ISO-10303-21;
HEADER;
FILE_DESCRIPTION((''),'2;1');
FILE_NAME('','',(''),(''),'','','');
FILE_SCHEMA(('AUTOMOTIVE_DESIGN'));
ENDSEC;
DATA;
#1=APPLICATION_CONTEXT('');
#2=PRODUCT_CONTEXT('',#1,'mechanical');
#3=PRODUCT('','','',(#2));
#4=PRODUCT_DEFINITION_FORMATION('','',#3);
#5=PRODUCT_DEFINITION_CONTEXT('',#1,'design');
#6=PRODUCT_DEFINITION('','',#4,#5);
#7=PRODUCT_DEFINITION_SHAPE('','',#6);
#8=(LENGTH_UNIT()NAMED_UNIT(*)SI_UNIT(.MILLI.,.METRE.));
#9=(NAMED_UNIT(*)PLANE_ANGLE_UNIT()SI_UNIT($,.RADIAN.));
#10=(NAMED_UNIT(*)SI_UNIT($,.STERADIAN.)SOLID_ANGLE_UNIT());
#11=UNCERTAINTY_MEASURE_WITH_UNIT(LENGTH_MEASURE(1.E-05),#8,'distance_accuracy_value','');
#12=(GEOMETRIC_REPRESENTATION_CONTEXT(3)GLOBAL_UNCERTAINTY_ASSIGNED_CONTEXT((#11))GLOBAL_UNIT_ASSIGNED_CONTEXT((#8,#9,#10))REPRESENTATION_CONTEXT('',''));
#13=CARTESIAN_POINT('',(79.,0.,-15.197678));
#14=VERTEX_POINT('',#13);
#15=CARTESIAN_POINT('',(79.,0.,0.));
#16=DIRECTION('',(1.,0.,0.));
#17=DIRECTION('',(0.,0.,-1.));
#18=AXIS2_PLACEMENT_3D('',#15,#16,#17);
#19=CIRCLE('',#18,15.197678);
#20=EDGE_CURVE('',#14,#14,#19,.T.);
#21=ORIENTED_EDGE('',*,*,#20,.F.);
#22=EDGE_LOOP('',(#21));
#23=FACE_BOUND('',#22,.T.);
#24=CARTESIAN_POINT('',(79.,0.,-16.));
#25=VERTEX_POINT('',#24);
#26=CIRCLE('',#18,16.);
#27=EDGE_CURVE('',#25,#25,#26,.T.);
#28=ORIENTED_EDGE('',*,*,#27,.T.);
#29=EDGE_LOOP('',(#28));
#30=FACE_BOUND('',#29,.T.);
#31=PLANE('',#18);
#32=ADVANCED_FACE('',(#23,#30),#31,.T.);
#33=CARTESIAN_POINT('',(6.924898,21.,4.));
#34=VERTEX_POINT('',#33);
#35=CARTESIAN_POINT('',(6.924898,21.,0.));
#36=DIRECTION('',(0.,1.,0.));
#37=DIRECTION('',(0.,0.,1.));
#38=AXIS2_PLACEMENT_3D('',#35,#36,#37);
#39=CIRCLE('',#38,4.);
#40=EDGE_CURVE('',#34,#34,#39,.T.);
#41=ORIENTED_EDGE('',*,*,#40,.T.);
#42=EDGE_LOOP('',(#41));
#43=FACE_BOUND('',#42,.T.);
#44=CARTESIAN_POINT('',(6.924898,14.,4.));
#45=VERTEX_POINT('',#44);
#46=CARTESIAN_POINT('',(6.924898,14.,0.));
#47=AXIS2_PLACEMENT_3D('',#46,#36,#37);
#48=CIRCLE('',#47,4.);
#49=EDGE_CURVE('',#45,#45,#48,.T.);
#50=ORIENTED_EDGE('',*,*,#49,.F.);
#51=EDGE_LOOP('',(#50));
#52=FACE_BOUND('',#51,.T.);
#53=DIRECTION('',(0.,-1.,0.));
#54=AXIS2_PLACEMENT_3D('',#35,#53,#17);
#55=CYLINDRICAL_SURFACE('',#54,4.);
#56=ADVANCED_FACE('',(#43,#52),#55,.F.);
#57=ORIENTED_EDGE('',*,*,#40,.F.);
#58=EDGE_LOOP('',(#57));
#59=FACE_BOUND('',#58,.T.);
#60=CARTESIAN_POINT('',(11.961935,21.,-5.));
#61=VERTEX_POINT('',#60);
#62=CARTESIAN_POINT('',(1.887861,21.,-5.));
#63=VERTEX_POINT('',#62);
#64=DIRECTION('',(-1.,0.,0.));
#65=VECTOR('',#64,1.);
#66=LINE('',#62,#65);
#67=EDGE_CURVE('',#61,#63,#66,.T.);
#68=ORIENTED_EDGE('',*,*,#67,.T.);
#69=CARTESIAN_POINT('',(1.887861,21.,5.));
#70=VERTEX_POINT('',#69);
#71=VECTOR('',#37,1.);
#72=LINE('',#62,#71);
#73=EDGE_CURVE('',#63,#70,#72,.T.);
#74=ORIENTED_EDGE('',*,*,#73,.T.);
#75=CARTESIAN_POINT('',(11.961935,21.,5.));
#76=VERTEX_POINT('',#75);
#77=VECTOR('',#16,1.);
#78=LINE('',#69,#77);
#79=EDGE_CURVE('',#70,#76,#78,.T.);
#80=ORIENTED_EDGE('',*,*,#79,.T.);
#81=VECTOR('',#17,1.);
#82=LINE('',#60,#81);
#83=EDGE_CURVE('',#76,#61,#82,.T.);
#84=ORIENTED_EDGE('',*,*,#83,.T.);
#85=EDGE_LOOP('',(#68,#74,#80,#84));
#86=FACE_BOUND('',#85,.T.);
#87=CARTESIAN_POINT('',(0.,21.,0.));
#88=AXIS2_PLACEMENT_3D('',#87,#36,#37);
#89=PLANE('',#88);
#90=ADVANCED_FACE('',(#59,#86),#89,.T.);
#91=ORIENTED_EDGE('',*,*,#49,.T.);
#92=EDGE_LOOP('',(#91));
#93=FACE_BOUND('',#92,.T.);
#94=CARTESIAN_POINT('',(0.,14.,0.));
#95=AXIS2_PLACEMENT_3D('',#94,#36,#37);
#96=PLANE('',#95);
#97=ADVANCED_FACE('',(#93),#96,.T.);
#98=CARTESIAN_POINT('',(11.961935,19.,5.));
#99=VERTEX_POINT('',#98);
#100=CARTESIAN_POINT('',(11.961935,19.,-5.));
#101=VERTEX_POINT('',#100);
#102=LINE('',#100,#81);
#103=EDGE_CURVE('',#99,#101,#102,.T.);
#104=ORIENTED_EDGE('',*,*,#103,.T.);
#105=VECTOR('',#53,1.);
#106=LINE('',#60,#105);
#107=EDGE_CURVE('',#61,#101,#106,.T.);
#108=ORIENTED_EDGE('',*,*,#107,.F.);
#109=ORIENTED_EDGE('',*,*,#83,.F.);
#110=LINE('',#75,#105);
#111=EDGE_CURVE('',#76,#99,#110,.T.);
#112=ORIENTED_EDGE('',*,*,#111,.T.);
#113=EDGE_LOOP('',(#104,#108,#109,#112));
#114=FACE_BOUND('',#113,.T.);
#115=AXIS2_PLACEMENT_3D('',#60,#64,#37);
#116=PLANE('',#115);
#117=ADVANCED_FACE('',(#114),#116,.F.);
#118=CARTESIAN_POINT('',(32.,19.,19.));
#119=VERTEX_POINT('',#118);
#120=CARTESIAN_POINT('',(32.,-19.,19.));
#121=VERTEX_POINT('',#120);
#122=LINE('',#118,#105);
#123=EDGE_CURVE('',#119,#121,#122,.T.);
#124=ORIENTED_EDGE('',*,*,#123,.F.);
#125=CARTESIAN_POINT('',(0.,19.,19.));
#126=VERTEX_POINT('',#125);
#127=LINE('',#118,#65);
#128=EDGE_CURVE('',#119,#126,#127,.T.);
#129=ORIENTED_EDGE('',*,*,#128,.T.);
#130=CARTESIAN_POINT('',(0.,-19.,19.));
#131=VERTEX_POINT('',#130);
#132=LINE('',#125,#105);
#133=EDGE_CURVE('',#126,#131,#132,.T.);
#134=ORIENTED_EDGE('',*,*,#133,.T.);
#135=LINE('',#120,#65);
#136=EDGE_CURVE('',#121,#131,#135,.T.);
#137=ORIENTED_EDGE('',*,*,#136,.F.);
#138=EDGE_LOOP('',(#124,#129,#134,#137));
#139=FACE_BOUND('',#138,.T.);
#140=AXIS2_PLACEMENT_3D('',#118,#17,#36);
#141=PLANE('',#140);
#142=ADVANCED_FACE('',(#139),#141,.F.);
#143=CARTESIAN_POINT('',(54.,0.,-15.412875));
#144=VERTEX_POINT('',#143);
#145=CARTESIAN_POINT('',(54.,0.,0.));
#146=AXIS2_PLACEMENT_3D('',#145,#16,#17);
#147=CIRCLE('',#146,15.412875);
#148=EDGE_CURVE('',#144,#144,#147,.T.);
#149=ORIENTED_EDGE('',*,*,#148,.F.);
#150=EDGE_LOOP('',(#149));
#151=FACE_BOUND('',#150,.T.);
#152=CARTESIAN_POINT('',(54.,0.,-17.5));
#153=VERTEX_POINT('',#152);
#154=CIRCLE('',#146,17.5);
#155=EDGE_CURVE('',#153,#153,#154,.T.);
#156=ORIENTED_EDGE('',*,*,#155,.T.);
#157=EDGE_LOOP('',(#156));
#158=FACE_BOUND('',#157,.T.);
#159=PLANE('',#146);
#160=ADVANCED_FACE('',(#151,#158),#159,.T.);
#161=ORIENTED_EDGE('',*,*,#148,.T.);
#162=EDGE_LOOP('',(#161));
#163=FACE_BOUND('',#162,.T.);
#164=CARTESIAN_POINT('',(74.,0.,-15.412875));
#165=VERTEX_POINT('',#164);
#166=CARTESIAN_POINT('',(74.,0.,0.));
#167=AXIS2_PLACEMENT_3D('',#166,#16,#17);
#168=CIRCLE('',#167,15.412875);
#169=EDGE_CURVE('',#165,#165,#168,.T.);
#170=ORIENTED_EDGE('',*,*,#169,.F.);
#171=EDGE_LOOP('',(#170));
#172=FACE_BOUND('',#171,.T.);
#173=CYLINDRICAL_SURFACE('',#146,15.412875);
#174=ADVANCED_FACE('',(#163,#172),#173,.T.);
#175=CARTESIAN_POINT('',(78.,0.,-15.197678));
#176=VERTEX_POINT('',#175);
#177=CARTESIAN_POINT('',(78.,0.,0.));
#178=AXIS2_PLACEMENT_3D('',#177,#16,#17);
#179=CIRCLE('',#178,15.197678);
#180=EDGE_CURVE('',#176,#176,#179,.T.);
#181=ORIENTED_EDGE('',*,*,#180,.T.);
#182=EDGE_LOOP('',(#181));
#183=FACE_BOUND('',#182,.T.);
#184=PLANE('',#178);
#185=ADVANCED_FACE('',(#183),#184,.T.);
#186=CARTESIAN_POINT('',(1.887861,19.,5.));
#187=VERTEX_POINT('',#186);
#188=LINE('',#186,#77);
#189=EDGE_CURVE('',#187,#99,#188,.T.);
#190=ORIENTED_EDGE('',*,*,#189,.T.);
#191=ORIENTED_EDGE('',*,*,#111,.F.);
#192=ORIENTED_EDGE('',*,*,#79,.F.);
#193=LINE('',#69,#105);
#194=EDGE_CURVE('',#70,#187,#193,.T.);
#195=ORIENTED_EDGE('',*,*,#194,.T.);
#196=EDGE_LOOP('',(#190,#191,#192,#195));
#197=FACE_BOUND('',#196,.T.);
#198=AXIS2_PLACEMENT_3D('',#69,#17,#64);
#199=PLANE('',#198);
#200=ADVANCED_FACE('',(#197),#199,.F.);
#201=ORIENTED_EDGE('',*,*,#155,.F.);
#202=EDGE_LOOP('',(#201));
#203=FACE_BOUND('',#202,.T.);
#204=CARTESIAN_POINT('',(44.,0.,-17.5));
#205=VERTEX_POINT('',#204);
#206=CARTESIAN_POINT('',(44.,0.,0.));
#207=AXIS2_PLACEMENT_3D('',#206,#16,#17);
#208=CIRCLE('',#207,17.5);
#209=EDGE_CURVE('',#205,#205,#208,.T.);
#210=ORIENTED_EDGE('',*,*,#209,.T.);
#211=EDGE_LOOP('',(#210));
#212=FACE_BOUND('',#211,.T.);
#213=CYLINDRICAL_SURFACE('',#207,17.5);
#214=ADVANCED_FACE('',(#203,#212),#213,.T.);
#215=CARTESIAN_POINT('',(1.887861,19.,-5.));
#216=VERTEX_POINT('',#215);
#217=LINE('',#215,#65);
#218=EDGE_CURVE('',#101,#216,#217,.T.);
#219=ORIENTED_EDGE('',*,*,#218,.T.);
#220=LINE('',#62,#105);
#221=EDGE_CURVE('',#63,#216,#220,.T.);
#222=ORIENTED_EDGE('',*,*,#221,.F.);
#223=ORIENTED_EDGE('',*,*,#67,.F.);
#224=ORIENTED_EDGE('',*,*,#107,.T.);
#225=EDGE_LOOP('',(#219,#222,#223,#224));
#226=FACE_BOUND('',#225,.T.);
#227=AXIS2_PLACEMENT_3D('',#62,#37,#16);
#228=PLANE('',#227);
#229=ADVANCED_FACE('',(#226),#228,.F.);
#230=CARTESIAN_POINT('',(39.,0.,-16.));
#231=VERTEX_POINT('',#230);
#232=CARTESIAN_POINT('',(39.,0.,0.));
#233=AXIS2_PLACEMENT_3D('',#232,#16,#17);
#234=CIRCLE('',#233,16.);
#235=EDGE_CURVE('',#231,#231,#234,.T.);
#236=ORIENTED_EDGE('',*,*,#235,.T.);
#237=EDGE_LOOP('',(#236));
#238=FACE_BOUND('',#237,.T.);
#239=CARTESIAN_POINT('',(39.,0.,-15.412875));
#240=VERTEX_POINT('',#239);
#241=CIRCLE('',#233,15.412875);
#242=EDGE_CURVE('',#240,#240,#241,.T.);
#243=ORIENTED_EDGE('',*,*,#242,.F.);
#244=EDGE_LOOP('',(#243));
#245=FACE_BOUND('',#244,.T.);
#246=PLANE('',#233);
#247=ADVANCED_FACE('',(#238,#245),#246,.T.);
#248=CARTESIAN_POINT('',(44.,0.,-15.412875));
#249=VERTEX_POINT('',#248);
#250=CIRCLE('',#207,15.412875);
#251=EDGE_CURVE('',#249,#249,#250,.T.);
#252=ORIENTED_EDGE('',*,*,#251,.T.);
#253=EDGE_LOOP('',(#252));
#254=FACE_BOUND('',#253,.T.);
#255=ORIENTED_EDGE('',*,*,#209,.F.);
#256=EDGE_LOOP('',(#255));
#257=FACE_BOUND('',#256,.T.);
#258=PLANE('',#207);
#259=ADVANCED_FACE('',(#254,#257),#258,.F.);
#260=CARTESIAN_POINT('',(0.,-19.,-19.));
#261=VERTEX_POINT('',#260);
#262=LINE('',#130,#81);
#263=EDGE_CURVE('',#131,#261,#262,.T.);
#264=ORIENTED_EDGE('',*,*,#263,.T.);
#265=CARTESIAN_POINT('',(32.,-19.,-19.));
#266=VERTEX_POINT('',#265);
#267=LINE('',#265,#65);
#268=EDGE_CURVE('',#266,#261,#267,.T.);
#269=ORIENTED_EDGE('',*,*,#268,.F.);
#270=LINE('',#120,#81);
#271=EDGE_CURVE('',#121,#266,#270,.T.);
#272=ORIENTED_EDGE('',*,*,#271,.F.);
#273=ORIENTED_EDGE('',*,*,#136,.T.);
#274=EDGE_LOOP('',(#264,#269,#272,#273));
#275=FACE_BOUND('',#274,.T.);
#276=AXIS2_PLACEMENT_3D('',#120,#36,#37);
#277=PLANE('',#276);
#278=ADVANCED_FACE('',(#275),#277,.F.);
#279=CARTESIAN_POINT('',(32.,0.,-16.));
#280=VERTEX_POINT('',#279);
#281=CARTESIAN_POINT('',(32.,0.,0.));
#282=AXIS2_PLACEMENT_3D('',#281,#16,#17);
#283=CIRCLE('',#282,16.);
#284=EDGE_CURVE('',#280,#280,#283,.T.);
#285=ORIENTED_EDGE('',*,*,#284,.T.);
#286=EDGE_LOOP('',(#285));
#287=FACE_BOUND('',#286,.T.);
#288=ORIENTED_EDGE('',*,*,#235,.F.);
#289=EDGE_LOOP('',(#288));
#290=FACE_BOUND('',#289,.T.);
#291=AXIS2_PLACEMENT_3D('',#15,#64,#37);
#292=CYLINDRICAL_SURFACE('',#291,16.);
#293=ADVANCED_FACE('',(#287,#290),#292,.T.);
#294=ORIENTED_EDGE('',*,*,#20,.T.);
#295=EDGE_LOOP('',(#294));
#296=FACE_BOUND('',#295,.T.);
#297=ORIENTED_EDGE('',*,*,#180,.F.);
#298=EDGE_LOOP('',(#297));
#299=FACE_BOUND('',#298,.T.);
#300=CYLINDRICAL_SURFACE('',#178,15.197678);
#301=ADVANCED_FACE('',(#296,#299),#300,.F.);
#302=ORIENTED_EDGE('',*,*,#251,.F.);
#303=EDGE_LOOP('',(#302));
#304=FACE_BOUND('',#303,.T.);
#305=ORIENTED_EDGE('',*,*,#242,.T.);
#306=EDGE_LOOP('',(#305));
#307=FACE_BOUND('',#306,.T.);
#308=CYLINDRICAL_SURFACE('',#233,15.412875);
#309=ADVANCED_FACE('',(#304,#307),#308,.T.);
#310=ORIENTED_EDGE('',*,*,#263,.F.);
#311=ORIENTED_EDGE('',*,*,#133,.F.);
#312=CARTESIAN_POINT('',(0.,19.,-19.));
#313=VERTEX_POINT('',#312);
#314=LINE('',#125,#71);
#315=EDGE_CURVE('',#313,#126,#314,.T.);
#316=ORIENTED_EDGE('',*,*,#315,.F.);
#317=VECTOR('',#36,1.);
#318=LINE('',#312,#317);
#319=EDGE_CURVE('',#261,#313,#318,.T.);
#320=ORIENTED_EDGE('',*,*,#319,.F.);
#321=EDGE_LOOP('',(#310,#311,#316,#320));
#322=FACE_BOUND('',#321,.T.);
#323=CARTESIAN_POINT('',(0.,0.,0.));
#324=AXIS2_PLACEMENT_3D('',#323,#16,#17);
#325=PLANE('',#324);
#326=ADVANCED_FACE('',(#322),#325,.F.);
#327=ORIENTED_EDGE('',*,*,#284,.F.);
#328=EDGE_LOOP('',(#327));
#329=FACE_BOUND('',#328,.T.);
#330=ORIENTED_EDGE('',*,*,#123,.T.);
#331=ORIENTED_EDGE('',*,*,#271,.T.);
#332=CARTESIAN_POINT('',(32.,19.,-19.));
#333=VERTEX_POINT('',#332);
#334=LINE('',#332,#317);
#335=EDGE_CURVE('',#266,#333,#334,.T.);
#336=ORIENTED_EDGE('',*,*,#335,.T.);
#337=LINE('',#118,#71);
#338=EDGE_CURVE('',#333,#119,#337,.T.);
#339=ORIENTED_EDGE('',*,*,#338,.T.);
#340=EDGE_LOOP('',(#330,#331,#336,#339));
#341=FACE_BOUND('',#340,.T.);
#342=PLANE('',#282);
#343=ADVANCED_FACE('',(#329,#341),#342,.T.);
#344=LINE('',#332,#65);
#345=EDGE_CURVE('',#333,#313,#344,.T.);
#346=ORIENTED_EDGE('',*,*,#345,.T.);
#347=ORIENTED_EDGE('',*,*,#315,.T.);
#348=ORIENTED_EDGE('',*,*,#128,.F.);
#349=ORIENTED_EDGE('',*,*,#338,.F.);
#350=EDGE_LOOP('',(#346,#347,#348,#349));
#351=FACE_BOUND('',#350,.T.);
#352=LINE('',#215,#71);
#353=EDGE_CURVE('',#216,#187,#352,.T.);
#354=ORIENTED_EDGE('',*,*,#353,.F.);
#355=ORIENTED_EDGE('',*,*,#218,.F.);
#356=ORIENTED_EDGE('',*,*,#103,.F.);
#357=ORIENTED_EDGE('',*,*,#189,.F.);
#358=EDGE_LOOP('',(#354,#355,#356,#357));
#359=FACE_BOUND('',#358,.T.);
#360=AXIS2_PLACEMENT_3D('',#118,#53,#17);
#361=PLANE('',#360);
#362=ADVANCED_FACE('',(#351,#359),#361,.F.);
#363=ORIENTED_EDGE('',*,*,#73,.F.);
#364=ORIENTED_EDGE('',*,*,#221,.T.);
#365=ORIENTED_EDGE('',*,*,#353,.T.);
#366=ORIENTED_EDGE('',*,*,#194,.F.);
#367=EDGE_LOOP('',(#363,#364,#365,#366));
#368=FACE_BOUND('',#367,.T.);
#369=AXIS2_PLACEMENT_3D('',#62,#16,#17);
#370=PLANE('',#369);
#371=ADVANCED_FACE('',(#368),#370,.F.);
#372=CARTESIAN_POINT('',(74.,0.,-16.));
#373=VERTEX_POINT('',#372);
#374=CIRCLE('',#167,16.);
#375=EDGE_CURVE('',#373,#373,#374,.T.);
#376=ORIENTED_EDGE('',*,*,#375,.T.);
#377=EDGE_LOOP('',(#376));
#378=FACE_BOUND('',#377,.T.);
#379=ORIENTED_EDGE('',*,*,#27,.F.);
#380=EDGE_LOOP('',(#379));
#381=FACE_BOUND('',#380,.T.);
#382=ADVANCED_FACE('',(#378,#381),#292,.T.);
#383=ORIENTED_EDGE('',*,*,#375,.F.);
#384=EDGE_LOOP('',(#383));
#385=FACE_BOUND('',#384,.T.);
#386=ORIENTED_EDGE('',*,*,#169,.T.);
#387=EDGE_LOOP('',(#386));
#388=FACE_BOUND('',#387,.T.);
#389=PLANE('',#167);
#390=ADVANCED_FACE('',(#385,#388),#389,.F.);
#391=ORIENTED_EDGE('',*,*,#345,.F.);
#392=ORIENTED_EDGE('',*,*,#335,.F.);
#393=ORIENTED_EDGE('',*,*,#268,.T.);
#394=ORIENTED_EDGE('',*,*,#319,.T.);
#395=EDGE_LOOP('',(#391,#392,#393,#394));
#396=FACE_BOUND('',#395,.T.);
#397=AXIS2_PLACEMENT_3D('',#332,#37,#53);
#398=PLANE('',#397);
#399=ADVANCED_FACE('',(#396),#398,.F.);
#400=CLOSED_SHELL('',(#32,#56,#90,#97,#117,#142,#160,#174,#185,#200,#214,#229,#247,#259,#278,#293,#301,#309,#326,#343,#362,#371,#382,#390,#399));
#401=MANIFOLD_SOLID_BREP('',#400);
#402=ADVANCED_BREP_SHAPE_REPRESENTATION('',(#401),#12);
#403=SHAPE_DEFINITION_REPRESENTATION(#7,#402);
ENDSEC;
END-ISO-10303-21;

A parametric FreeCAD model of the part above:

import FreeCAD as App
import Part
import Sketcher
Q = App.Units.Quantity

doc = App.newDocument("Part")
body = doc.addObject("PartDesign::Body", "Body")

# Sketch on YZ plane
sketch1 = body.newObject("Sketcher::SketchObject", "Sketch")
sketch1.AttachmentSupport = (doc.getObject("YZ_Plane"), [""])
sketch1.MapMode = "FlatFace"
sketch1.addGeometry([
    Part.LineSegment(App.Vector(19, 19, 0), App.Vector(-19, 19, 0)),
    Part.LineSegment(App.Vector(-19, 19, 0), App.Vector(-19, -19, 0)),
    Part.LineSegment(App.Vector(-19, -19, 0), App.Vector(19, -19, 0)),
    Part.LineSegment(App.Vector(19, -19, 0), App.Vector(19, 19, 0)),
], False)
sketch1.addConstraint([
    Sketcher.Constraint("Coincident", 0, 2, 1, 1),
    Sketcher.Constraint("Coincident", 1, 2, 2, 1),
    Sketcher.Constraint("Coincident", 2, 2, 3, 1),
    Sketcher.Constraint("Coincident", 3, 2, 0, 1),
    Sketcher.Constraint("Horizontal", 0),
    Sketcher.Constraint("Vertical", 1),
    Sketcher.Constraint("Horizontal", 2),
    Sketcher.Constraint("Vertical", 3),
    Sketcher.Constraint("Symmetric", 0, 2, 2, 2, -1, 1),
    Sketcher.Constraint("Equal", 2, 1),
    Sketcher.Constraint("DistanceX", 0, 2, 0, 1, Q("38 mm")),
])
pad1 = body.newObject("PartDesign::Pad", "Pad")
pad1.Profile = sketch1
pad1.Length = 32

# Sketch on YZ plane
sketch2 = body.newObject("Sketcher::SketchObject", "Sketch001")
sketch2.AttachmentSupport = (doc.getObject("YZ_Plane"), [""])
sketch2.MapMode = "FlatFace"
sketch2.AttachmentOffset = App.Placement(App.Vector(0, 0, 32), App.Rotation())
sketch2.addGeometry(Part.Circle(App.Vector(0, 0, 0), App.Vector(0, 0, 1), 16), False)
sketch2.addConstraint([
    Sketcher.Constraint("Coincident", 0, 3, -1, 1),
    Sketcher.Constraint("Diameter", 0, Q("32 mm")),
])
pad2 = body.newObject("PartDesign::Pad", "Pad001")
pad2.Profile = sketch2
pad2.Length = 47

# Sketch on XZ plane
sketch3 = body.newObject("Sketcher::SketchObject", "Sketch002")
sketch3.AttachmentSupport = (doc.getObject("XZ_Plane"), [""])
sketch3.MapMode = "FlatFace"
sketch3.AttachmentOffset = App.Placement(App.Vector(0, 0, -19), App.Rotation())
sketch3.addGeometry([
    Part.LineSegment(App.Vector(1.9, -5, 0), App.Vector(1.9, 5, 0)),  # 0
    Part.LineSegment(App.Vector(1.9, 5, 0), App.Vector(12, 5, 0)),  # 1
    Part.LineSegment(App.Vector(12, 5, 0), App.Vector(12, -5, 0)),  # 2
    Part.LineSegment(App.Vector(12, -5, 0), App.Vector(1.9, -5, 0)),  # 3
    Part.Circle(App.Vector(6.9, 0, 0), App.Vector(0, 0, 1), 4),  # 4
], False)
sketch3.addConstraint([
    Sketcher.Constraint("Coincident", 0, 2, 1, 1),
    Sketcher.Constraint("Coincident", 1, 2, 2, 1),
    Sketcher.Constraint("Coincident", 2, 2, 3, 1),
    Sketcher.Constraint("Coincident", 3, 2, 0, 1),
    Sketcher.Constraint("Vertical", 0),
    Sketcher.Constraint("Horizontal", 1),
    Sketcher.Constraint("Vertical", 2),
    Sketcher.Constraint("Horizontal", 3),
    Sketcher.Constraint("PointOnObject", 4, 3, -1),
    Sketcher.Constraint("Diameter", 4, Q("8 mm")),
    Sketcher.Constraint("DistanceY", 0, 1, 0, 2, Q("10 mm")),
    Sketcher.Constraint("DistanceY", -1, 1, 0, 2, Q("5 mm")),
    Sketcher.Constraint("DistanceX", -1, 1, 4, 3, Q("6.924898 mm")),
    Sketcher.Constraint("DistanceX", 1, 1, 1, 2, Q("10.074074 mm")),
    Sketcher.Constraint("DistanceX", -1, 1, 0, 2, Q("1.887861 mm")),
])
pad3 = body.newObject("PartDesign::Pad", "Pad002")
pad3.Profile = sketch3
pad3.Length = 2
pad3.Reversed = True

# Sketch on XZ plane
sketch4 = body.newObject("Sketcher::SketchObject", "Sketch003")
sketch4.AttachmentSupport = (doc.getObject("XZ_Plane"), [""])
sketch4.MapMode = "FlatFace"
sketch4.AttachmentOffset = App.Placement(App.Vector(0, 0, -14), App.Rotation())
sketch4.addGeometry(Part.Circle(App.Vector(6.9, 0, 0), App.Vector(0, 0, 1), 4), False)
sketch4.addConstraint([
    Sketcher.Constraint("PointOnObject", 0, 3, -1),
    Sketcher.Constraint("Diameter", 0, Q("8 mm")),
    Sketcher.Constraint("DistanceX", -1, 1, 0, 3, Q("6.924898 mm")),
])
pocket1 = body.newObject("PartDesign::Pocket", "Pocket")
pocket1.Profile = sketch4
pocket1.Length = 5

# Sketch on YZ plane
sketch5 = body.newObject("Sketcher::SketchObject", "Sketch004")
sketch5.AttachmentSupport = (doc.getObject("YZ_Plane"), [""])
sketch5.MapMode = "FlatFace"
sketch5.AttachmentOffset = App.Placement(App.Vector(0, 0, 54), App.Rotation())
sketch5.addGeometry([
    Part.Circle(App.Vector(0, 0, 0), App.Vector(0, 0, 1), 16),
    Part.Circle(App.Vector(0, 0, 0), App.Vector(0, 0, 1), 15),
], False)
sketch5.addConstraint([
    Sketcher.Constraint("Coincident", 0, 3, -1, 1),
    Sketcher.Constraint("Coincident", 1, 3, -1, 1),
    Sketcher.Constraint("Diameter", 0, Q("32 mm")),
    Sketcher.Constraint("Diameter", 1, Q("30.82575 mm")),
])
pocket2 = body.newObject("PartDesign::Pocket", "Pocket001")
pocket2.Profile = sketch5
pocket2.Length = 20
pocket2.Reversed = True

# Sketch on YZ plane
sketch6 = body.newObject("Sketcher::SketchObject", "Sketch005")
sketch6.AttachmentSupport = (doc.getObject("YZ_Plane"), [""])
sketch6.MapMode = "FlatFace"
sketch6.AttachmentOffset = App.Placement(App.Vector(0, 0, 44), App.Rotation())
sketch6.addGeometry([
    Part.Circle(App.Vector(0, 0, 0), App.Vector(0, 0, 1), 18),
    Part.Circle(App.Vector(0, 0, 0), App.Vector(0, 0, 1), 16),
], False)
sketch6.addConstraint([
    Sketcher.Constraint("Coincident", 0, 3, -1, 1),
    Sketcher.Constraint("Coincident", 1, 3, -1, 1),
    Sketcher.Constraint("Diameter", 0, Q("35 mm")),
    Sketcher.Constraint("Diameter", 1, Q("32 mm")),
])
pad4 = body.newObject("PartDesign::Pad", "Pad003")
pad4.Profile = sketch6
pad4.Length = 10

# Sketch on YZ plane
sketch7 = body.newObject("Sketcher::SketchObject", "Sketch006")
sketch7.AttachmentSupport = (doc.getObject("YZ_Plane"), [""])
sketch7.MapMode = "FlatFace"
sketch7.AttachmentOffset = App.Placement(App.Vector(0, 0, 39), App.Rotation())
sketch7.addGeometry([
    Part.Circle(App.Vector(0, 0, 0), App.Vector(0, 0, 1), 16),
    Part.Circle(App.Vector(0, 0, 0), App.Vector(0, 0, 1), 15),
], False)
sketch7.addConstraint([
    Sketcher.Constraint("Coincident", 0, 3, -1, 1),
    Sketcher.Constraint("Coincident", 1, 3, -1, 1),
    Sketcher.Constraint("Diameter", 0, Q("32 mm")),
    Sketcher.Constraint("Diameter", 1, Q("30.82575 mm")),
])
pocket3 = body.newObject("PartDesign::Pocket", "Pocket002")
pocket3.Profile = sketch7
pocket3.Length = 5
pocket3.Reversed = True

# Sketch on YZ plane
sketch8 = body.newObject("Sketcher::SketchObject", "Sketch007")
sketch8.AttachmentSupport = (doc.getObject("YZ_Plane"), [""])
sketch8.MapMode = "FlatFace"
sketch8.AttachmentOffset = App.Placement(App.Vector(0, 0, 79), App.Rotation())
sketch8.addGeometry(Part.Circle(App.Vector(0, 0, 0), App.Vector(0, 0, 1), 15), False)
sketch8.addConstraint([
    Sketcher.Constraint("Coincident", 0, 3, -1, 1),
    Sketcher.Constraint("Diameter", 0, Q("30.395357 mm")),
])
pocket4 = body.newObject("PartDesign::Pocket", "Pocket003")
pocket4.Profile = sketch8
pocket4.Length = 1

doc.recompute()
